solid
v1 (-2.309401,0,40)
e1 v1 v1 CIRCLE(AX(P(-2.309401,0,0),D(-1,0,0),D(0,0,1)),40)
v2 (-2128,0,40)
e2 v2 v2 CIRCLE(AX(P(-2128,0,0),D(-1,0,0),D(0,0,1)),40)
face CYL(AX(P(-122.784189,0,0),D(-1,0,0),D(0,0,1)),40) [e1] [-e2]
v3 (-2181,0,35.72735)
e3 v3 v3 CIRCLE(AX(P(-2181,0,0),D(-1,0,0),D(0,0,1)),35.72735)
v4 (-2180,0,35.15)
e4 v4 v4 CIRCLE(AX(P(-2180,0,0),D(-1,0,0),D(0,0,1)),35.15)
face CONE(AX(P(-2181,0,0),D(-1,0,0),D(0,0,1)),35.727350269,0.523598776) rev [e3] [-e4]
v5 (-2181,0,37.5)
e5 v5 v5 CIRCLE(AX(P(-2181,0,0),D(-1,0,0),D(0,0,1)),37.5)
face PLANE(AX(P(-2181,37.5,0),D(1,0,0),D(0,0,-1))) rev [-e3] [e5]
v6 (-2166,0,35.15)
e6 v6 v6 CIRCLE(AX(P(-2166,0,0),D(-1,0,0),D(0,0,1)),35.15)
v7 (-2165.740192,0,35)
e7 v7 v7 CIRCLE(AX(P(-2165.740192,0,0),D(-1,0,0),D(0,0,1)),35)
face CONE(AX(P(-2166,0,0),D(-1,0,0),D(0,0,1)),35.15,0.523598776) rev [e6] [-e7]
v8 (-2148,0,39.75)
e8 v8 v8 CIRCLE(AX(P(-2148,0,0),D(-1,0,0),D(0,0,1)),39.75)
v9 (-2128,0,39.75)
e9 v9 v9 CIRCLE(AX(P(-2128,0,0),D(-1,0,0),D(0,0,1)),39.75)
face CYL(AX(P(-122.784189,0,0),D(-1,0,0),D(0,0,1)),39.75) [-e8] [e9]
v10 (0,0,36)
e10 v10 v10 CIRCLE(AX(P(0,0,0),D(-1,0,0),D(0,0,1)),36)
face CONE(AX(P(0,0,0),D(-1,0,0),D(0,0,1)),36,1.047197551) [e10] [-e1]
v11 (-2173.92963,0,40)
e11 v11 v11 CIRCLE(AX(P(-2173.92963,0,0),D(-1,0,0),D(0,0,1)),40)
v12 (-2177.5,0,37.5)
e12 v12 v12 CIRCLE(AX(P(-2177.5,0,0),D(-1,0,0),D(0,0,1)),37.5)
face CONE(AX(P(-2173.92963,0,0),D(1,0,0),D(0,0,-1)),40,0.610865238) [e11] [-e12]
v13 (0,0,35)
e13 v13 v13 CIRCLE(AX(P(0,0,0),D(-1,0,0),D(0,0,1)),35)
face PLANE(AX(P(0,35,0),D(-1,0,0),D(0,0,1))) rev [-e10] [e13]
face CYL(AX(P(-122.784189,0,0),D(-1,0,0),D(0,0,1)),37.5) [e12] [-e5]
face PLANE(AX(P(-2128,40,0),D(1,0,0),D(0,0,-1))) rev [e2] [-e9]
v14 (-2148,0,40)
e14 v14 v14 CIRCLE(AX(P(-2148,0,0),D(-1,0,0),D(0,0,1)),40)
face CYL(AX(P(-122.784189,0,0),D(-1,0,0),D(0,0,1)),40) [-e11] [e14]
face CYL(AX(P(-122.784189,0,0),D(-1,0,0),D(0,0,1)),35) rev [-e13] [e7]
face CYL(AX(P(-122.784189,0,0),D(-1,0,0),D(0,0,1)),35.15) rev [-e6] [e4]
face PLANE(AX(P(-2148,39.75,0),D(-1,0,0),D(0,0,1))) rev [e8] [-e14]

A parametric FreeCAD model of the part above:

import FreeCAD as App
import Part
import Sketcher
from FreeCAD import Vector
Q = App.Units.Quantity

doc = App.newDocument("Part")
body = doc.addObject("PartDesign::Body", "Body")

sketch1 = body.newObject("Sketcher::SketchObject", "Sketch")
sketch1.AttachmentSupport = (doc.getObject("XY_Plane"), [""])
sketch1.MapMode = "FlatFace"
sketch1.addGeometry([
    Part.LineSegment(Vector(0, 35, 0), Vector(0, 36, 0)),
    Part.LineSegment(Vector(0, 36, 0), Vector(-2.31, 40, 0)),
    Part.LineSegment(Vector(-2.31, 40, 0), Vector(-2128, 40, 0)),
    Part.LineSegment(Vector(-2128, 40, 0), Vector(-2128, 39.75, 0)),
    Part.LineSegment(Vector(-2128, 39.75, 0), Vector(-2148, 39.75, 0)),
    Part.LineSegment(Vector(-2148, 39.75, 0), Vector(-2148, 40, 0)),
    Part.LineSegment(Vector(-2148, 40, 0), Vector(-2173.93, 40, 0)),
    Part.LineSegment(Vector(-2173.93, 40, 0), Vector(-2177.5, 37.5, 0)),
    Part.LineSegment(Vector(-2177.5, 37.5, 0), Vector(-2181, 37.5, 0)),
    Part.LineSegment(Vector(-2181, 37.5, 0), Vector(-2181, 35.73, 0)),
    Part.LineSegment(Vector(-2181, 35.73, 0), Vector(-2180, 35.15, 0)),
    Part.LineSegment(Vector(-2180, 35.15, 0), Vector(-2166, 35.15, 0)),
    Part.LineSegment(Vector(-2166, 35.15, 0), Vector(-2165.74, 35, 0)),
    Part.LineSegment(Vector(-2165.74, 35, 0), Vector(0, 35, 0)),
], False)
sketch1.addConstraint([
    Sketcher.Constraint("Coincident", 0, 2, 1, 1),
    Sketcher.Constraint("Coincident", 1, 2, 2, 1),
    Sketcher.Constraint("Coincident", 2, 2, 3, 1),
    Sketcher.Constraint("Coincident", 3, 2, 4, 1),
    Sketcher.Constraint("Coincident", 4, 2, 5, 1),
    Sketcher.Constraint("Coincident", 5, 2, 6, 1),
    Sketcher.Constraint("Coincident", 6, 2, 7, 1),
    Sketcher.Constraint("Coincident", 7, 2, 8, 1),
    Sketcher.Constraint("Coincident", 8, 2, 9, 1),
    Sketcher.Constraint("Coincident", 9, 2, 10, 1),
    Sketcher.Constraint("Coincident", 10, 2, 11, 1),
    Sketcher.Constraint("Coincident", 11, 2, 12, 1),
    Sketcher.Constraint("Coincident", 12, 2, 13, 1),
    Sketcher.Constraint("Coincident", 13, 2, 0, 1),
    Sketcher.Constraint("Vertical", 0),
    Sketcher.Constraint("Horizontal", 2),
    Sketcher.Constraint("Vertical", 3),
    Sketcher.Constraint("Horizontal", 4),
    Sketcher.Constraint("Vertical", 5),
    Sketcher.Constraint("Horizontal", 6),
    Sketcher.Constraint("Horizontal", 8),
    Sketcher.Constraint("Vertical", 9),
    Sketcher.Constraint("Horizontal", 11),
    Sketcher.Constraint("Horizontal", 13),
    Sketcher.Constraint("PointOnObject", 0, 2, -2),
    Sketcher.Constraint("Parallel", 10, 12),
    Sketcher.Constraint("Horizontal", 2, 2, 5, 2),
    Sketcher.Constraint("DistanceX", 4, 2, 4, 1, 20.0),
    Sketcher.Constraint("DistanceX", 11, 1, 11, 2, 14.0),
    Sketcher.Constraint("DistanceY", 0, 1, 0, 2, 1.0),
    Sketcher.Constraint("Angle", 1, Q("120 deg")),
    Sketcher.Constraint("Angle", 7, Q("-145 deg")),
    Sketcher.Constraint("Angle", 10, Q("-30 deg")),
    Sketcher.Constraint("DistanceX", 8, 2, 8, 1, 3.5),
    Sketcher.Constraint("DistanceY", -1, 1, 0, 2, 36.0),
    Sketcher.Constraint("DistanceY", -1, 1, 1, 2, 40.0),
    Sketcher.Constraint("DistanceX", 2, 2, -1, 1, 2128.0),
    Sketcher.Constraint("DistanceX", 8, 2, -1, 1, 2181.0),
    Sketcher.Constraint("DistanceX", 10, 2, -1, 1, 2180.0),
    Sketcher.Constraint("Distance", 12, 0.3),
    Sketcher.Constraint("DistanceY", 3, 2, 3, 1, 0.25),
    Sketcher.Constraint("DistanceY", -1, 1, 7, 2, 37.5),
])
revolution = body.newObject("PartDesign::Revolution", "Revolution")
revolution.Profile = sketch1
revolution.ReferenceAxis = (sketch1, ["H_Axis"])
revolution.Angle = 360

doc.recompute()
